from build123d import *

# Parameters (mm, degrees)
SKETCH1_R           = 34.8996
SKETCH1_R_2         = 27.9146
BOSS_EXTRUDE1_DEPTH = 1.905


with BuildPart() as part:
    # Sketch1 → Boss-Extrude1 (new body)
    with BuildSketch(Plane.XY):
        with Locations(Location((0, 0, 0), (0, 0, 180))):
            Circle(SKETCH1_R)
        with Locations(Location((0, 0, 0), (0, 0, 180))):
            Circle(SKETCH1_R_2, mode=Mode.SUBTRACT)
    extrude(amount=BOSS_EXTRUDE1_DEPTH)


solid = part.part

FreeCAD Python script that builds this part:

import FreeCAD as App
import Part
import Sketcher
Q = App.Units.Quantity

doc = App.newDocument("Part")
body = doc.addObject("PartDesign::Body", "Body")

sketch1 = body.newObject("Sketcher::SketchObject", "Sketch")
sketch1.AttachmentSupport = (doc.getObject("XY_Plane"), [""])
sketch1.MapMode = "FlatFace"
sketch1.addGeometry([
    Part.Circle(App.Vector(0, 0, 0), App.Vector(0, 0, 1), 35),
    Part.Circle(App.Vector(0, 0, 0), App.Vector(0, 0, 1), 28),
], False)
sketch1.addConstraint([
    Sketcher.Constraint("Coincident", 0, 3, -1, 1),
    Sketcher.Constraint("Coincident", 1, 3, -1, 1),
    Sketcher.Constraint("Diameter", 0, Q("2.748 in")),
    Sketcher.Constraint("Diameter", 1, Q("2.198 in")),
])
pad1 = body.newObject("PartDesign::Pad", "Pad")
pad1.Profile = sketch1
pad1.Length = Q("0.075 in")

doc.recompute()
